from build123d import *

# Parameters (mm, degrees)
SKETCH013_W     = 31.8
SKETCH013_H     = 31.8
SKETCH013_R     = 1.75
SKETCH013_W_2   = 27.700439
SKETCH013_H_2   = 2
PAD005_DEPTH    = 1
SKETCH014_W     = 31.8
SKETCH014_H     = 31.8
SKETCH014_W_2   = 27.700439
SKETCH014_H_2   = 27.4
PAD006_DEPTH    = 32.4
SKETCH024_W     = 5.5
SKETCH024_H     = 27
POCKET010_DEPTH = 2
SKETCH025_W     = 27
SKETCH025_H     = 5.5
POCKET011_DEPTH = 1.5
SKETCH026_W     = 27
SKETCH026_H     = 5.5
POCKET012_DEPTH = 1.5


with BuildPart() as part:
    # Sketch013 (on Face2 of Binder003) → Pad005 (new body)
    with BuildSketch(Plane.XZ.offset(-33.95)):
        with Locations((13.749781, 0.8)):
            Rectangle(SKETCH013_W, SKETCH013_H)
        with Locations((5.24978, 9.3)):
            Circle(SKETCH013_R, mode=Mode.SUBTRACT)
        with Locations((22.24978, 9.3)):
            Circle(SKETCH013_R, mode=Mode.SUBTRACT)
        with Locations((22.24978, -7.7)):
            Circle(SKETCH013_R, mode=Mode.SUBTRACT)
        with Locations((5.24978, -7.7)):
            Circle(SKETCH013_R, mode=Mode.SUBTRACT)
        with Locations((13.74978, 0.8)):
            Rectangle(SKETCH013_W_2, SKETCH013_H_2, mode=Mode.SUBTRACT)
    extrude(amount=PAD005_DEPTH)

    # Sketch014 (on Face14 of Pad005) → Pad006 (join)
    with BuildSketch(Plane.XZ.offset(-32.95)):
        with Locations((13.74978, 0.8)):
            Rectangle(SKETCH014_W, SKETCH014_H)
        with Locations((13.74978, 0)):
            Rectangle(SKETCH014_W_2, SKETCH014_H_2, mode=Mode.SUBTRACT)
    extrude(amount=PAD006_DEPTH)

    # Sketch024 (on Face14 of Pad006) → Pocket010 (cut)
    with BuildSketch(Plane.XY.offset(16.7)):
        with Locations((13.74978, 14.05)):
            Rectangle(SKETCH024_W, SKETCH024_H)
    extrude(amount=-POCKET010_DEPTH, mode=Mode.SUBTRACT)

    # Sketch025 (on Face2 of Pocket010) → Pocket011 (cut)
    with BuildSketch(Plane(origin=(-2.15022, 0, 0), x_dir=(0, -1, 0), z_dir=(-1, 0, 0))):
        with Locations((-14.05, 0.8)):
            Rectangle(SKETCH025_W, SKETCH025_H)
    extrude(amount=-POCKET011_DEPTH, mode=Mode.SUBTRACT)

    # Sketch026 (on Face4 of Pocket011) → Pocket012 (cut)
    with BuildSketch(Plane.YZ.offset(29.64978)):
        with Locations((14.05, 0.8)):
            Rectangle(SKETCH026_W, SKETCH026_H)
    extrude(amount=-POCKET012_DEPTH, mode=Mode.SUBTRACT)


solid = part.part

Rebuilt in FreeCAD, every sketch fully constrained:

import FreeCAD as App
import Part
import Sketcher

V = App.Vector
Q = App.Units.Quantity


def add_polygon(sketch, points):
    """Adds a closed chain of lines whose ends are joined by coincident constraints."""
    first, n = sketch.GeometryCount, len(points)
    for a, b in zip(points, points[1:] + points[:1]):
        sketch.addGeometry(Part.LineSegment(App.Vector(*a, 0), App.Vector(*b, 0)), False)
    for i in range(n):
        sketch.addConstraint(Sketcher.Constraint("Coincident", first + i, 2, first + (i + 1) % n, 1))

doc = App.newDocument("Part")
body = doc.addObject("PartDesign::Body", "Body")

# Sketch on XZ plane
sketch1 = doc.addObject("Sketcher::SketchObject", "Sketch")
body.addObject(sketch1)
sketch1.AttachmentSupport = (doc.XZ_Plane, [""])
sketch1.MapMode = "FlatFace"
sketch1.AttachmentOffset = App.Placement(V(0, 0, -33.95), App.Rotation())
add_polygon(sketch1, [(-2.2, 16.7), (-2.2, -15.1), (29.6, -15.1), (29.6, 16.7)])  # lines 0-3
sketch1.addGeometry(Part.Circle(V(5.2, -7.7, 0), V(0, 0, 1), 1.8), False)  # 4
sketch1.addGeometry(Part.Circle(V(22.2, -7.7, 0), V(0, 0, 1), 1.8), False)  # 5
sketch1.addGeometry(Part.Circle(V(5.2, 9.3, 0), V(0, 0, 1), 1.8), False)  # 6
add_polygon(sketch1, [(27.6, -0.2), (-0.1, -0.2), (-0.1, 1.8), (27.6, 1.8)])  # lines 7-10
sketch1.addGeometry(Part.Circle(V(22.2, 9.3, 0), V(0, 0, 1), 1.8), False)  # 11
sketch1.addConstraint([
    Sketcher.Constraint("Vertical", 0),
    Sketcher.Constraint("Horizontal", 1),
    Sketcher.Constraint("Vertical", 2),
    Sketcher.Constraint("Horizontal", 3),
    Sketcher.Constraint("Horizontal", 7),
    Sketcher.Constraint("Vertical", 8),
    Sketcher.Constraint("Horizontal", 9),
    Sketcher.Constraint("Vertical", 10),
    Sketcher.Constraint("Equal", 4, 5),
    Sketcher.Constraint("Equal", 5, 6),
    Sketcher.Constraint("Equal", 6, 11),
    Sketcher.Constraint("Horizontal", 4, 3, 5, 3),
    Sketcher.Constraint("Horizontal", 6, 3, 11, 3),
    Sketcher.Constraint("Vertical", 4, 3, 6, 3),
    Sketcher.Constraint("Vertical", 5, 3, 11, 3),
    Sketcher.Constraint("Equal", 3, 0),
    Sketcher.Constraint("Diameter", 4, Q("3.5 mm")),
    Sketcher.Constraint("DistanceY", 8, 1, 8, 2, Q("2 mm")),
    Sketcher.Constraint("DistanceX", 1, 1, 1, 2, Q("31.8 mm")),
    Sketcher.Constraint("DistanceX", 4, 3, 5, 3, Q("17 mm")),
    Sketcher.Constraint("DistanceY", 4, 3, 6, 3, Q("17 mm")),
    Sketcher.Constraint("DistanceY", 4, 3, -1, 1, Q("7.7 mm")),
    Sketcher.Constraint("DistanceY", 0, 2, -1, 1, Q("15.1 mm")),
    Sketcher.Constraint("DistanceY", 7, 2, -1, 1, Q("0.2 mm")),
    Sketcher.Constraint("DistanceX", -1, 1, 9, 2, Q("27.599999 mm")),
    Sketcher.Constraint("DistanceX", 0, 2, 4, 3, Q("7.399999 mm")),
    Sketcher.Constraint("DistanceX", 7, 2, 7, 1, Q("27.700439 mm")),
    Sketcher.Constraint("DistanceX", -1, 1, 4, 3, Q("5.24978 mm")),
])
pad1 = doc.addObject("PartDesign::Pad", "Pad")
body.addObject(pad1)
pad1.Profile = sketch1
pad1.Length = 1

# Sketch on XZ plane
sketch2 = doc.addObject("Sketcher::SketchObject", "Sketch001")
body.addObject(sketch2)
sketch2.AttachmentSupport = (doc.XZ_Plane, [""])
sketch2.MapMode = "FlatFace"
sketch2.AttachmentOffset = App.Placement(V(0, 0, -32.95), App.Rotation())
add_polygon(sketch2, [(-2, 17), (-2, -15), (30, -15), (30, 17)])  # lines 0-3
add_polygon(sketch2, [(28, -14), (0, -14), (0, 14), (28, 14)])  # lines 4-7
sketch2.addConstraint([
    Sketcher.Constraint("Vertical", 0),
    Sketcher.Constraint("Horizontal", 1),
    Sketcher.Constraint("Vertical", 2),
    Sketcher.Constraint("Horizontal", 3),
    Sketcher.Constraint("Horizontal", 4),
    Sketcher.Constraint("Vertical", 5),
    Sketcher.Constraint("Horizontal", 6),
    Sketcher.Constraint("Vertical", 7),
    Sketcher.Constraint("Equal", 3, 0),
    Sketcher.Constraint("DistanceX", 1, 1, 1, 2, Q("31.8 mm")),
    Sketcher.Constraint("DistanceY", 5, 1, 5, 2, Q("27.4 mm")),
    Sketcher.Constraint("DistanceY", 5, 2, 3, 2, Q("3 mm")),
    Sketcher.Constraint("DistanceY", 0, 2, -1, 1, Q("15.1 mm")),
    Sketcher.Constraint("DistanceX", -1, 1, 6, 2, Q("27.599999 mm")),
    Sketcher.Constraint("DistanceX", 4, 2, 4, 1, Q("27.700439 mm")),
    Sketcher.Constraint("DistanceX", 0, 2, -1, 1, Q("2.15022 mm")),
])
pad2 = doc.addObject("PartDesign::Pad", "Pad001")
body.addObject(pad2)
pad2.Profile = sketch2
pad2.Length = 32.4

# Sketch on XY plane
sketch3 = doc.addObject("Sketcher::SketchObject", "Sketch002")
body.addObject(sketch3)
sketch3.AttachmentSupport = (doc.XY_Plane, [""])
sketch3.MapMode = "FlatFace"
sketch3.AttachmentOffset = App.Placement(V(0, 0, 16.7), App.Rotation())
add_polygon(sketch3, [(11, 28), (11, 1), (16, 1), (16, 28)])  # lines 0-3
sketch3.addConstraint([
    Sketcher.Constraint("Vertical", 0),
    Sketcher.Constraint("Horizontal", 1),
    Sketcher.Constraint("Vertical", 2),
    Sketcher.Constraint("Horizontal", 3),
    Sketcher.Constraint("DistanceY", 0, 2, 0, 1, Q("27 mm")),
    Sketcher.Constraint("DistanceX", 1, 1, 1, 2, Q("5.5 mm")),
    Sketcher.Constraint("DistanceY", -1, 1, 0, 2, Q("0.55 mm")),
    Sketcher.Constraint("DistanceX", -1, 1, 0, 2, Q("10.99978 mm")),
])
pocket1 = doc.addObject("PartDesign::Pocket", "Pocket")
body.addObject(pocket1)
pocket1.Profile = sketch3
pocket1.Length = 2

# Sketch on YZ plane
sketch4 = doc.addObject("Sketcher::SketchObject", "Sketch003")
body.addObject(sketch4)
sketch4.AttachmentSupport = (doc.YZ_Plane, [""])
sketch4.MapMode = "FlatFace"
sketch4.AttachmentOffset = App.Placement(V(0, 0, -2.15022), App.Rotation())
add_polygon(sketch4, [(28, 4), (28, -2), (1, -2), (1, 4)])  # lines 0-3
sketch4.addConstraint([
    Sketcher.Constraint("Vertical", 0),
    Sketcher.Constraint("Horizontal", 1),
    Sketcher.Constraint("Vertical", 2),
    Sketcher.Constraint("Horizontal", 3),
    Sketcher.Constraint("DistanceX", 1, 2, 1, 1, Q("27 mm")),
    Sketcher.Constraint("DistanceY", 0, 2, 0, 1, Q("5.5 mm")),
    Sketcher.Constraint("DistanceX", -1, 1, 0, 2, Q("27.55 mm")),
    Sketcher.Constraint("DistanceY", 0, 2, -1, 1, Q("1.95 mm")),
])
pocket2 = doc.addObject("PartDesign::Pocket", "Pocket001")
body.addObject(pocket2)
pocket2.Profile = sketch4
pocket2.Length = 1.5
pocket2.Reversed = True

# Sketch on YZ plane
sketch5 = doc.addObject("Sketcher::SketchObject", "Sketch004")
body.addObject(sketch5)
sketch5.AttachmentSupport = (doc.YZ_Plane, [""])
sketch5.MapMode = "FlatFace"
sketch5.AttachmentOffset = App.Placement(V(0, 0, 29.64978), App.Rotation())
add_polygon(sketch5, [(1, 4), (1, -2), (28, -2), (28, 4)])  # lines 0-3
sketch5.addConstraint([
    Sketcher.Constraint("Vertical", 0),
    Sketcher.Constraint("Horizontal", 1),
    Sketcher.Constraint("Vertical", 2),
    Sketcher.Constraint("Horizontal", 3),
    Sketcher.Constraint("DistanceX", 1, 1, 1, 2, Q("27 mm")),
    Sketcher.Constraint("DistanceY", 0, 2, 0, 1, Q("5.5 mm")),
    Sketcher.Constraint("DistanceX", -1, 1, 0, 2, Q("0.55 mm")),
    Sketcher.Constraint("DistanceY", 0, 2, -1, 1, Q("1.95 mm")),
])
pocket3 = doc.addObject("PartDesign::Pocket", "Pocket002")
body.addObject(pocket3)
pocket3.Profile = sketch5
pocket3.Length = 1.5

doc.recompute()
